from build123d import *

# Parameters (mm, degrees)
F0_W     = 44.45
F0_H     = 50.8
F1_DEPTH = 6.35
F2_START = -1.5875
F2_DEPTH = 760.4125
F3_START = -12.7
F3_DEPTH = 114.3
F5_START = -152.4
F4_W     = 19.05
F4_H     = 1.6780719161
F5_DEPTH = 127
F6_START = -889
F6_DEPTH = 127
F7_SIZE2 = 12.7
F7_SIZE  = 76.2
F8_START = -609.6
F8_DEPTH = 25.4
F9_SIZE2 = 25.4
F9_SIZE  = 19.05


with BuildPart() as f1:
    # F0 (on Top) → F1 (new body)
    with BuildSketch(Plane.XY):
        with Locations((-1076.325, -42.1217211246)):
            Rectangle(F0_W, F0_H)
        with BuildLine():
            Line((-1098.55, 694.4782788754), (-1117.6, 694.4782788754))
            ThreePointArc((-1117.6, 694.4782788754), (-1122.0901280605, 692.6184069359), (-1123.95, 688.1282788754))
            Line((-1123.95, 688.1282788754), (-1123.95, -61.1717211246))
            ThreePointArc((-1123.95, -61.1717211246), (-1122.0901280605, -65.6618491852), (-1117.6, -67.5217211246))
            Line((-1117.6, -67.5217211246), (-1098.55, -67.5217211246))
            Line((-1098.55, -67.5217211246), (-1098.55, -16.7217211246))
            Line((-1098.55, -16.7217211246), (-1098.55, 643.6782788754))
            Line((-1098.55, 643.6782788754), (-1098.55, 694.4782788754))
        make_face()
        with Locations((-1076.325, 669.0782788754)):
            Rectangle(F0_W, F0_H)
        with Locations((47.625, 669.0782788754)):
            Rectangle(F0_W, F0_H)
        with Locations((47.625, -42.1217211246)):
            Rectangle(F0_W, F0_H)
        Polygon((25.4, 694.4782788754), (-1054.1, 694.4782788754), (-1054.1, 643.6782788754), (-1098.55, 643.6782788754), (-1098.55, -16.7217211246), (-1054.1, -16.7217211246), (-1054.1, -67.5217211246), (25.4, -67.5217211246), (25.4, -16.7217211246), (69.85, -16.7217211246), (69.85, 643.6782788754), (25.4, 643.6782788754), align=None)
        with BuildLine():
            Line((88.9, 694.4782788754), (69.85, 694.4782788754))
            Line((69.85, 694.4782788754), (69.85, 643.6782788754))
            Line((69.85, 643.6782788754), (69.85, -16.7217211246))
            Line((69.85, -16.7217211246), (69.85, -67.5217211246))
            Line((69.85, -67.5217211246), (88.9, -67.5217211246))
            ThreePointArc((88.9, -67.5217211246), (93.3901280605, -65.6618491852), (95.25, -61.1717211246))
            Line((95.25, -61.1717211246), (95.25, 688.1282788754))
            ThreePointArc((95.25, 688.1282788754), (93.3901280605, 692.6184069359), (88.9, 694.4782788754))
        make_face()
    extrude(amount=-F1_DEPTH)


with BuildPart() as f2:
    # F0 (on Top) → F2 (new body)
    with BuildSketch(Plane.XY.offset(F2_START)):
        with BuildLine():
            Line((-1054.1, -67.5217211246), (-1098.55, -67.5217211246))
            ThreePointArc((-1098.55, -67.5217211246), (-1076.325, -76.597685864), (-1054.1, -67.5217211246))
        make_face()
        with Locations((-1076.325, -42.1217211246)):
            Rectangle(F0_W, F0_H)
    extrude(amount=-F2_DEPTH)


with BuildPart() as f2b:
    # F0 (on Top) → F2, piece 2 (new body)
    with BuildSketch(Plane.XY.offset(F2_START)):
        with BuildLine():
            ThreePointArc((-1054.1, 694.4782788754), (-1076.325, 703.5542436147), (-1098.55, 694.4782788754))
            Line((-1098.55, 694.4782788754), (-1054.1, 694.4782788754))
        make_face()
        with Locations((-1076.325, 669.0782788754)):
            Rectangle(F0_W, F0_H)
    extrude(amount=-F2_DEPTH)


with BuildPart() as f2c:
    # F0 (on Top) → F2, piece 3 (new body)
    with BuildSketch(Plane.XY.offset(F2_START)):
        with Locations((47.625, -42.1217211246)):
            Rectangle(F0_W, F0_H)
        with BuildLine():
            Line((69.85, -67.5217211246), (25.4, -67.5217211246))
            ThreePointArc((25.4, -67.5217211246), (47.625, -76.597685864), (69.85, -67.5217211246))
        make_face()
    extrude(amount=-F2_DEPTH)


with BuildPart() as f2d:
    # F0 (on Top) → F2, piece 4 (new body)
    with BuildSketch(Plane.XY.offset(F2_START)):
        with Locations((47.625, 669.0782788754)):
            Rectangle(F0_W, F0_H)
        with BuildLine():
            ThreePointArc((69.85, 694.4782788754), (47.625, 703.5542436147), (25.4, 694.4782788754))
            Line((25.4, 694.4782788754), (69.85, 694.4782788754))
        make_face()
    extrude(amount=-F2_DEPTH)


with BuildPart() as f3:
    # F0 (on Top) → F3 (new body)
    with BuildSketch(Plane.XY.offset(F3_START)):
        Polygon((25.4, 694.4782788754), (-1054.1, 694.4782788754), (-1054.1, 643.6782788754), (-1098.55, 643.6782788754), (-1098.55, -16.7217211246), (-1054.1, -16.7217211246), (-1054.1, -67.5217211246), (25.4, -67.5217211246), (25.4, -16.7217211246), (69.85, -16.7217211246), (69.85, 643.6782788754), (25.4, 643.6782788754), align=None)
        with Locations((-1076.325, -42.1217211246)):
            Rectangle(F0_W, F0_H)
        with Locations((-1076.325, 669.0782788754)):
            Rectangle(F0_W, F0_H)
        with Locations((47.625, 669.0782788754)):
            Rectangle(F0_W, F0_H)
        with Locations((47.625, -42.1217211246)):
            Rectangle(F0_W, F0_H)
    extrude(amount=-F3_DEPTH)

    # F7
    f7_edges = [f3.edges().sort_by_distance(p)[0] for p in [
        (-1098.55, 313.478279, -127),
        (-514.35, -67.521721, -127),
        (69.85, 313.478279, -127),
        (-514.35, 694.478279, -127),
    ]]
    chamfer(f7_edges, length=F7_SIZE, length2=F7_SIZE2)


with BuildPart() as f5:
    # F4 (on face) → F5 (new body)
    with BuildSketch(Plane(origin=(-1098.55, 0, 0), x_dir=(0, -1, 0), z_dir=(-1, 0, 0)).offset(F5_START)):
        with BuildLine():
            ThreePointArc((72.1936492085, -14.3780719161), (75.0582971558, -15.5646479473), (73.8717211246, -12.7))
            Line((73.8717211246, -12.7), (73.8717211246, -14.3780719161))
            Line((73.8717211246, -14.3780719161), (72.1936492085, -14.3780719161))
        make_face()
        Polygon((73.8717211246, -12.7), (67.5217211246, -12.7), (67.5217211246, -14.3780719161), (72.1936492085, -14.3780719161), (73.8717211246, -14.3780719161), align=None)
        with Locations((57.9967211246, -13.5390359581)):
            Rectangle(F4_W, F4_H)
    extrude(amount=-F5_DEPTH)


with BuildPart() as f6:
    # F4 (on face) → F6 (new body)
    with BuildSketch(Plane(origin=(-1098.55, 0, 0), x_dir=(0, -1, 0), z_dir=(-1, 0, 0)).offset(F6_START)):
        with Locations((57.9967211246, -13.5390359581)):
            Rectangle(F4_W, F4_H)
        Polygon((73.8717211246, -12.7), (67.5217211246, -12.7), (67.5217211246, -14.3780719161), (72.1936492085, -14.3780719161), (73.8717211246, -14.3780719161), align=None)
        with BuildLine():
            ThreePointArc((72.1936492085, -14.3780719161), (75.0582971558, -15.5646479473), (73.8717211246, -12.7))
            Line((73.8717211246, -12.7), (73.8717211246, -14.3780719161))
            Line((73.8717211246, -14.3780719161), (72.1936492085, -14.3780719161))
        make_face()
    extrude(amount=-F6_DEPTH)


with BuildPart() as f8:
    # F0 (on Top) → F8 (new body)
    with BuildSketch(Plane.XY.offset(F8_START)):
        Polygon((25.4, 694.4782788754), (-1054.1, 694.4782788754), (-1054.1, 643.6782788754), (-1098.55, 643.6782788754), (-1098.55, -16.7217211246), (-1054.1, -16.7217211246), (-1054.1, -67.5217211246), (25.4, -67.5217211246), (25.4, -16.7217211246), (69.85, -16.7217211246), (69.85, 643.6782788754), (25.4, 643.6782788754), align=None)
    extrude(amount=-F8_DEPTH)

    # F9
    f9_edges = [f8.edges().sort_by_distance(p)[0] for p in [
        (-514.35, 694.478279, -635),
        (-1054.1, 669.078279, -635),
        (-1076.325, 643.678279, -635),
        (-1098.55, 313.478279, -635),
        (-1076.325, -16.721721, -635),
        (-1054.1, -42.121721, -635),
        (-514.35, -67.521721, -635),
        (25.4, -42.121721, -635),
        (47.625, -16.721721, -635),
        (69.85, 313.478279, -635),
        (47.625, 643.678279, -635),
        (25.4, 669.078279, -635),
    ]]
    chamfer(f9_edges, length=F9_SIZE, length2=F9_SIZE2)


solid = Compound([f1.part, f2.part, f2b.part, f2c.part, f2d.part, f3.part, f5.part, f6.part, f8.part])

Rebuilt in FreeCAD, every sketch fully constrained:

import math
import FreeCAD as App
import Part
import Sketcher
from FreeCAD import Vector
Q = App.Units.Quantity


def edges_at(feature, points):
    """Names of the edges that pass closest to the given points."""
    edges = feature.Shape.Edges
    near = lambda p: min(range(len(edges)), key=lambda i: edges[i].distToShape(Part.Vertex(*p))[0])
    return sorted({f"Edge{near(p) + 1}" for p in points})


def add_polygon(sketch, points):
    """Adds a closed chain of lines whose ends are joined by coincident constraints."""
    first, n = sketch.GeometryCount, len(points)
    for a, b in zip(points, points[1:] + points[:1]):
        sketch.addGeometry(Part.LineSegment(App.Vector(*a, 0), App.Vector(*b, 0)), False)
    for i in range(n):
        sketch.addConstraint(Sketcher.Constraint("Coincident", first + i, 2, first + (i + 1) % n, 1))

doc = App.newDocument("Part")
body = doc.addObject("PartDesign::Body", "Body")

# Sketch on XY plane
sketch1 = doc.addObject("Sketcher::SketchObject", "Sketch")
body.addObject(sketch1)
sketch1.AttachmentSupport = (doc.XY_Plane, [""])
sketch1.MapMode = "FlatFace"
sketch1.addGeometry([
    Part.LineSegment(Vector(-1118, -68, 0), Vector(89, -68, 0)),  # 0
    Part.ArcOfCircle(Part.Circle(Vector(89, -61, 0), Vector(0, 0, 1), 6), math.radians(-90), math.radians(0)),  # 1
    Part.LineSegment(Vector(95, -61, 0), Vector(95, 688, 0)),  # 2
    Part.ArcOfCircle(Part.Circle(Vector(89, 688, 0), Vector(0, 0, 1), 6), math.radians(0), math.radians(90)),  # 3
    Part.LineSegment(Vector(89, 694, 0), Vector(-1118, 694, 0)),  # 4
    Part.ArcOfCircle(Part.Circle(Vector(-1118, 688, 0), Vector(0, 0, 1), 6), math.radians(90), math.radians(180)),  # 5
    Part.LineSegment(Vector(-1124, 688, 0), Vector(-1124, -61, 0)),  # 6
    Part.ArcOfCircle(Part.Circle(Vector(-1118, -61, 0), Vector(0, 0, 1), 6), math.radians(180), math.radians(270)),  # 7
], False)
sketch1.addConstraint([
    Sketcher.Constraint("Tangent", 0, 2, 1, 1),
    Sketcher.Constraint("Tangent", 1, 2, 2, 1),
    Sketcher.Constraint("Tangent", 2, 2, 3, 1),
    Sketcher.Constraint("Tangent", 3, 2, 4, 1),
    Sketcher.Constraint("Tangent", 4, 2, 5, 1),
    Sketcher.Constraint("Tangent", 5, 2, 6, 1),
    Sketcher.Constraint("Tangent", 6, 2, 7, 1),
    Sketcher.Constraint("Tangent", 7, 2, 0, 1),
    Sketcher.Constraint("Horizontal", 0),
    Sketcher.Constraint("Vertical", 2),
    Sketcher.Constraint("Horizontal", 4),
    Sketcher.Constraint("Vertical", 6),
    Sketcher.Constraint("Equal", 1, 3),
    Sketcher.Constraint("Equal", 3, 5),
    Sketcher.Constraint("Equal", 5, 7),
    Sketcher.Constraint("Radius", 1, Q("0.25 in")),
    Sketcher.Constraint("DistanceX", 0, 1, 0, 2, Q("47.5 in")),
    Sketcher.Constraint("DistanceY", 2, 1, 2, 2, Q("29.5 in")),
    Sketcher.Constraint("DistanceX", 5, 3, -1, 1, Q("44 in")),
    Sketcher.Constraint("DistanceY", 1, 3, -1, 1, 61.171721),
])
pad1 = doc.addObject("PartDesign::Pad", "Pad")
body.addObject(pad1)
pad1.Profile = sketch1
pad1.Length = Q("0.25 in")
pad1.Reversed = True
body2 = doc.addObject("PartDesign::Body", "Body001")

# Sketch on XY plane
sketch2 = doc.addObject("Sketcher::SketchObject", "Sketch001")
body2.addObject(sketch2)
sketch2.AttachmentSupport = (doc.getObject("XY_Plane001"), [""])
sketch2.MapMode = "FlatFace"
sketch2.AttachmentOffset = App.Placement(Vector(0, 0, -0.0625 * 25.4), App.Rotation())
sketch2.addGeometry([
    Part.ArcOfCircle(Part.Circle(Vector(-1076, -45, 0), Vector(0, 0, 1), 32), math.radians(-134), math.radians(-46)),
    Part.LineSegment(Vector(-1054, -68, 0), Vector(-1054, -17, 0)),
    Part.LineSegment(Vector(-1054, -17, 0), Vector(-1099, -17, 0)),
    Part.LineSegment(Vector(-1099, -17, 0), Vector(-1099, -68, 0)),
], False)
sketch2.addConstraint([
    Sketcher.Constraint("Coincident", 0, 2, 1, 1),
    Sketcher.Constraint("Coincident", 1, 2, 2, 1),
    Sketcher.Constraint("Coincident", 2, 2, 3, 1),
    Sketcher.Constraint("Coincident", 3, 2, 0, 1),
    Sketcher.Constraint("Vertical", 1),
    Sketcher.Constraint("Horizontal", 2),
    Sketcher.Constraint("Vertical", 3),
    Sketcher.Constraint("Horizontal", 0, 2, 3, 2),
    Sketcher.Constraint("DistanceY", 1, 1, 1, 2, Q("2 in")),
    Sketcher.Constraint("Radius", 0, Q("1.25 in")),
    Sketcher.Constraint("DistanceX", 2, 2, 2, 1, Q("1.75 in")),
    Sketcher.Constraint("DistanceX", 0, 2, -1, 1, Q("41.5 in")),
    Sketcher.Constraint("DistanceY", 0, 2, -1, 1, 67.521721),
])
pad2 = doc.addObject("PartDesign::Pad", "Pad001")
body2.addObject(pad2)
pad2.Profile = sketch2
pad2.Length = Q("29.9375 in")
pad2.Reversed = True
body3 = doc.addObject("PartDesign::Body", "Body002")

# Sketch on XY plane
sketch3 = doc.addObject("Sketcher::SketchObject", "Sketch002")
body3.addObject(sketch3)
sketch3.AttachmentSupport = (doc.getObject("XY_Plane002"), [""])
sketch3.MapMode = "FlatFace"
sketch3.AttachmentOffset = App.Placement(Vector(0, 0, -0.0625 * 25.4), App.Rotation())
sketch3.addGeometry([
    Part.ArcOfCircle(Part.Circle(Vector(-1076, 672, 0), Vector(0, 0, 1), 32), math.radians(46), math.radians(134)),
    Part.LineSegment(Vector(-1099, 694, 0), Vector(-1099, 644, 0)),
    Part.LineSegment(Vector(-1099, 644, 0), Vector(-1054, 644, 0)),
    Part.LineSegment(Vector(-1054, 644, 0), Vector(-1054, 694, 0)),
], False)
sketch3.addConstraint([
    Sketcher.Constraint("Coincident", 0, 2, 1, 1),
    Sketcher.Constraint("Coincident", 1, 2, 2, 1),
    Sketcher.Constraint("Coincident", 2, 2, 3, 1),
    Sketcher.Constraint("Coincident", 3, 2, 0, 1),
    Sketcher.Constraint("Vertical", 1),
    Sketcher.Constraint("Horizontal", 2),
    Sketcher.Constraint("Vertical", 3),
    Sketcher.Constraint("Horizontal", 0, 2, 3, 2),
    Sketcher.Constraint("DistanceY", 1, 2, 1, 1, Q("2 in")),
    Sketcher.Constraint("Radius", 0, Q("1.25 in")),
    Sketcher.Constraint("DistanceX", 2, 1, 2, 2, Q("1.75 in")),
    Sketcher.Constraint("DistanceX", 2, 2, -1, 1, Q("41.5 in")),
    Sketcher.Constraint("DistanceY", -1, 1, 0, 2, 694.478279),
])
pad3 = doc.addObject("PartDesign::Pad", "Pad002")
body3.addObject(pad3)
pad3.Profile = sketch3
pad3.Length = Q("29.9375 in")
pad3.Reversed = True
body4 = doc.addObject("PartDesign::Body", "Body003")

# Sketch on XY plane
sketch4 = doc.addObject("Sketcher::SketchObject", "Sketch003")
body4.addObject(sketch4)
sketch4.AttachmentSupport = (doc.getObject("XY_Plane003"), [""])
sketch4.MapMode = "FlatFace"
sketch4.AttachmentOffset = App.Placement(Vector(0, 0, -0.0625 * 25.4), App.Rotation())
sketch4.addGeometry([
    Part.LineSegment(Vector(25, -17, 0), Vector(25, -68, 0)),
    Part.ArcOfCircle(Part.Circle(Vector(48, -45, 0), Vector(0, 0, 1), 32), math.radians(-134), math.radians(-46)),
    Part.LineSegment(Vector(70, -68, 0), Vector(70, -17, 0)),
    Part.LineSegment(Vector(70, -17, 0), Vector(25, -17, 0)),
], False)
sketch4.addConstraint([
    Sketcher.Constraint("Coincident", 0, 2, 1, 1),
    Sketcher.Constraint("Coincident", 1, 2, 2, 1),
    Sketcher.Constraint("Coincident", 2, 2, 3, 1),
    Sketcher.Constraint("Coincident", 3, 2, 0, 1),
    Sketcher.Constraint("Vertical", 0),
    Sketcher.Constraint("Vertical", 2),
    Sketcher.Constraint("Horizontal", 3),
    Sketcher.Constraint("Horizontal", 0, 2, 1, 2),
    Sketcher.Constraint("DistanceY", 0, 2, 0, 1, Q("2 in")),
    Sketcher.Constraint("Radius", 1, Q("1.25 in")),
    Sketcher.Constraint("DistanceX", -1, 1, 0, 2, Q("1 in")),
    Sketcher.Constraint("DistanceX", 3, 2, 3, 1, Q("1.75 in")),
    Sketcher.Constraint("DistanceY", 0, 2, -1, 1, 67.521721),
])
pad4 = doc.addObject("PartDesign::Pad", "Pad003")
body4.addObject(pad4)
pad4.Profile = sketch4
pad4.Length = Q("29.9375 in")
pad4.Reversed = True
body5 = doc.addObject("PartDesign::Body", "Body004")

# Sketch on XY plane
sketch5 = doc.addObject("Sketcher::SketchObject", "Sketch004")
body5.addObject(sketch5)
sketch5.AttachmentSupport = (doc.getObject("XY_Plane004"), [""])
sketch5.MapMode = "FlatFace"
sketch5.AttachmentOffset = App.Placement(Vector(0, 0, -0.0625 * 25.4), App.Rotation())
sketch5.addGeometry([
    Part.LineSegment(Vector(25, 694, 0), Vector(25, 644, 0)),
    Part.LineSegment(Vector(25, 644, 0), Vector(70, 644, 0)),
    Part.LineSegment(Vector(70, 644, 0), Vector(70, 694, 0)),
    Part.ArcOfCircle(Part.Circle(Vector(48, 672, 0), Vector(0, 0, 1), 32), math.radians(46), math.radians(134)),
], False)
sketch5.addConstraint([
    Sketcher.Constraint("Coincident", 0, 2, 1, 1),
    Sketcher.Constraint("Coincident", 1, 2, 2, 1),
    Sketcher.Constraint("Coincident", 2, 2, 3, 1),
    Sketcher.Constraint("Coincident", 3, 2, 0, 1),
    Sketcher.Constraint("Vertical", 0),
    Sketcher.Constraint("Horizontal", 1),
    Sketcher.Constraint("Vertical", 2),
    Sketcher.Constraint("Horizontal", 2, 2, 3, 2),
    Sketcher.Constraint("DistanceY", 0, 2, 0, 1, Q("2 in")),
    Sketcher.Constraint("Radius", 3, Q("1.25 in")),
    Sketcher.Constraint("DistanceX", -1, 1, 0, 2, Q("1 in")),
    Sketcher.Constraint("DistanceX", 1, 1, 1, 2, Q("1.75 in")),
    Sketcher.Constraint("DistanceY", -1, 1, 0, 2, 643.678279),
])
pad5 = doc.addObject("PartDesign::Pad", "Pad004")
body5.addObject(pad5)
pad5.Profile = sketch5
pad5.Length = Q("29.9375 in")
pad5.Reversed = True
body6 = doc.addObject("PartDesign::Body", "Body005")

# Sketch on XY plane
sketch6 = doc.addObject("Sketcher::SketchObject", "Sketch005")
body6.addObject(sketch6)
sketch6.AttachmentSupport = (doc.getObject("XY_Plane005"), [""])
sketch6.MapMode = "FlatFace"
sketch6.AttachmentOffset = App.Placement(Vector(0, 0, -0.5 * 25.4), App.Rotation())
add_polygon(sketch6, [(-1099, 694), (-1099, -68), (70, -68), (70, 694)])  # lines 0-3
sketch6.addConstraint([
    Sketcher.Constraint("Vertical", 0),
    Sketcher.Constraint("Horizontal", 1),
    Sketcher.Constraint("Vertical", 2),
    Sketcher.Constraint("Horizontal", 3),
    Sketcher.Constraint("DistanceX", 1, 1, 1, 2, Q("46 in")),
    Sketcher.Constraint("DistanceY", 0, 2, 0, 1, Q("30 in")),
    Sketcher.Constraint("DistanceX", 0, 2, -1, 1, Q("43.25 in")),
    Sketcher.Constraint("DistanceY", 0, 2, -1, 1, 67.521721),
])
pad6 = doc.addObject("PartDesign::Pad", "Pad005")
body6.addObject(pad6)
pad6.Profile = sketch6
pad6.Length = Q("4.5 in")
pad6.Reversed = True
doc.recompute()

chamfer = doc.addObject("PartDesign::Chamfer", "Chamfer")
body6.addObject(chamfer)
chamfer.Base = (pad6, edges_at(pad6, [
    (-1098.55, 313.478, -127),
    (-514.35, -67.522, -127),
    (69.85, 313.478, -127),
    (-514.35, 694.478, -127),
]))
chamfer.ChamferType = "Two distances"
chamfer.Size = Q("3 in")
chamfer.Size2 = Q("0.5 in")
body7 = doc.addObject("PartDesign::Body", "Body006")

# Sketch on YZ plane
sketch7 = doc.addObject("Sketcher::SketchObject", "Sketch006")
body7.addObject(sketch7)
sketch7.AttachmentSupport = (doc.getObject("YZ_Plane006"), [""])
sketch7.MapMode = "FlatFace"
sketch7.AttachmentOffset = App.Placement(Vector(0, 0, -37.25 * 25.4), App.Rotation())
sketch7.addGeometry([
    Part.ArcOfCircle(Part.Circle(Vector(-73.9, -14.4, 0), Vector(0, 0, 1), 1.7), math.radians(90), math.radians(360)),  # 0
    Part.LineSegment(Vector(-73.9, -12.7, 0), Vector(-67.5, -12.7, 0)),  # 1
    Part.LineSegment(Vector(-67.5, -12.7, 0), Vector(-48.5, -12.7, 0)),  # 2
    Part.LineSegment(Vector(-48.5, -12.7, 0), Vector(-48.5, -14.4, 0)),  # 3
    Part.LineSegment(Vector(-48.5, -14.4, 0), Vector(-67.5, -14.4, 0)),  # 4
    Part.LineSegment(Vector(-67.5, -14.4, 0), Vector(-72.2, -14.4, 0)),  # 5
], False)
sketch7.addConstraint([
    Sketcher.Constraint("Tangent", 0, 1, 1, 1),
    Sketcher.Constraint("Coincident", 1, 2, 2, 1),
    Sketcher.Constraint("Coincident", 2, 2, 3, 1),
    Sketcher.Constraint("Coincident", 3, 2, 4, 1),
    Sketcher.Constraint("Coincident", 4, 2, 5, 1),
    Sketcher.Constraint("Coincident", 5, 2, 0, 2),
    Sketcher.Constraint("Horizontal", 1),
    Sketcher.Constraint("Horizontal", 2),
    Sketcher.Constraint("Vertical", 3),
    Sketcher.Constraint("Horizontal", 4),
    Sketcher.Constraint("Horizontal", 5),
    Sketcher.Constraint("Horizontal", 0, 3, 3, 2),
    Sketcher.Constraint("Vertical", 1, 2, 4, 2),
    Sketcher.Constraint("DistanceX", 0, 1, 2, 2, Q("1 in")),
    Sketcher.Constraint("DistanceX", 1, 1, 1, 2, Q("0.25 in")),
    Sketcher.Constraint("DistanceY", 0, 1, -1, 1, Q("0.5 in")),
    Sketcher.Constraint("Radius", 0, 1.678072),
    Sketcher.Constraint("DistanceX", 0, 3, -1, 1, 73.871721),
])
pad7 = doc.addObject("PartDesign::Pad", "Pad006")
body7.addObject(pad7)
pad7.Profile = sketch7
pad7.Length = Q("5 in")
body8 = doc.addObject("PartDesign::Body", "Body007")

# Sketch on YZ plane
sketch8 = doc.addObject("Sketcher::SketchObject", "Sketch007")
body8.addObject(sketch8)
sketch8.AttachmentSupport = (doc.getObject("YZ_Plane007"), [""])
sketch8.MapMode = "FlatFace"
sketch8.AttachmentOffset = App.Placement(Vector(0, 0, -8.25 * 25.4), App.Rotation())
sketch8.addGeometry([
    Part.LineSegment(Vector(-48.5, -12.7, 0), Vector(-48.5, -14.4, 0)),  # 0
    Part.LineSegment(Vector(-48.5, -14.4, 0), Vector(-67.5, -14.4, 0)),  # 1
    Part.LineSegment(Vector(-67.5, -14.4, 0), Vector(-72.2, -14.4, 0)),  # 2
    Part.ArcOfCircle(Part.Circle(Vector(-73.9, -14.4, 0), Vector(0, 0, 1), 1.7), math.radians(90), math.radians(360)),  # 3
    Part.LineSegment(Vector(-73.9, -12.7, 0), Vector(-67.5, -12.7, 0)),  # 4
    Part.LineSegment(Vector(-67.5, -12.7, 0), Vector(-48.5, -12.7, 0)),  # 5
], False)
sketch8.addConstraint([
    Sketcher.Constraint("Coincident", 0, 2, 1, 1),
    Sketcher.Constraint("Coincident", 1, 2, 2, 1),
    Sketcher.Constraint("Coincident", 2, 2, 3, 2),
    Sketcher.Constraint("Tangent", 3, 1, 4, 1),
    Sketcher.Constraint("Coincident", 4, 2, 5, 1),
    Sketcher.Constraint("Coincident", 5, 2, 0, 1),
    Sketcher.Constraint("Vertical", 0),
    Sketcher.Constraint("Horizontal", 1),
    Sketcher.Constraint("Horizontal", 2),
    Sketcher.Constraint("Horizontal", 4),
    Sketcher.Constraint("Horizontal", 5),
    Sketcher.Constraint("Horizontal", 3, 3, 0, 2),
    Sketcher.Constraint("Vertical", 1, 2, 4, 2),
    Sketcher.Constraint("DistanceX", 3, 3, 0, 2, Q("1 in")),
    Sketcher.Constraint("DistanceX", 1, 2, 1, 1, Q("0.75 in")),
    Sketcher.Constraint("DistanceY", 3, 1, -1, 1, Q("0.5 in")),
    Sketcher.Constraint("Radius", 3, 1.678072),
    Sketcher.Constraint("DistanceX", 3, 3, -1, 1, 73.871721),
])
pad8 = doc.addObject("PartDesign::Pad", "Pad007")
body8.addObject(pad8)
pad8.Profile = sketch8
pad8.Length = Q("5 in")
body9 = doc.addObject("PartDesign::Body", "Body008")

# Sketch on XY plane
sketch9 = doc.addObject("Sketcher::SketchObject", "Sketch008")
body9.addObject(sketch9)
sketch9.AttachmentSupport = (doc.getObject("XY_Plane008"), [""])
sketch9.MapMode = "FlatFace"
sketch9.AttachmentOffset = App.Placement(Vector(0, 0, -24 * 25.4), App.Rotation())
add_polygon(sketch9, [(25, 694), (-1054, 694), (-1054, 644), (-1099, 644), (-1099, -17), (-1054, -17), (-1054, -68), (25, -68), (25, -17), (70, -17), (70, 644), (25, 644)])  # lines 0-11
sketch9.addConstraint([
    Sketcher.Constraint("Horizontal", 0),
    Sketcher.Constraint("Vertical", 1),
    Sketcher.Constraint("Horizontal", 2),
    Sketcher.Constraint("Vertical", 3),
    Sketcher.Constraint("Horizontal", 4),
    Sketcher.Constraint("Vertical", 5),
    Sketcher.Constraint("Horizontal", 6),
    Sketcher.Constraint("Vertical", 7),
    Sketcher.Constraint("Horizontal", 8),
    Sketcher.Constraint("Vertical", 9),
    Sketcher.Constraint("Horizontal", 10),
    Sketcher.Constraint("Vertical", 11),
    Sketcher.Constraint("Horizontal", 4, 2, 7, 2),
    Sketcher.Constraint("Horizontal", 2, 2, 9, 2),
    Sketcher.Constraint("Vertical", 1, 2, 4, 2),
    Sketcher.Constraint("Vertical", 7, 2, 10, 2),
    Sketcher.Constraint("Equal", 4, 8),
    Sketcher.Constraint("Equal", 1, 5),
    Sketcher.Constraint("DistanceY", 1, 2, 1, 1, Q("2 in")),
    Sketcher.Constraint("DistanceY", 3, 2, 3, 1, Q("26 in")),
    Sketcher.Constraint("DistanceX", 0, 2, 0, 1, Q("42.5 in")),
    Sketcher.Constraint("DistanceX", -1, 1, 6, 2, Q("1 in")),
    Sketcher.Constraint("DistanceX", 3, 2, 8, 2, Q("46 in")),
    Sketcher.Constraint("DistanceY", -1, 1, 0, 2, 694.478279),
])
pad9 = doc.addObject("PartDesign::Pad", "Pad008")
body9.addObject(pad9)
pad9.Profile = sketch9
pad9.Length = Q("1 in")
pad9.Reversed = True
doc.recompute()

chamfer2 = doc.addObject("PartDesign::Chamfer", "Chamfer001")
body9.addObject(chamfer2)
chamfer2.Base = (pad9, edges_at(pad9, [
    (-514.35, 694.478, -635),
    (-1054.1, 669.078, -635),
    (-1076.325, 643.678, -635),
    (-1098.55, 313.478, -635),
    (-1076.325, -16.722, -635),
    (-1054.1, -42.122, -635),
    (-514.35, -67.522, -635),
    (25.4, -42.122, -635),
    (47.625, -16.722, -635),
    (69.85, 313.478, -635),
    (47.625, 643.678, -635),
    (25.4, 669.078, -635),
]))
chamfer2.ChamferType = "Two distances"
chamfer2.Size = Q("0.75 in")
chamfer2.Size2 = Q("1 in")

doc.recompute()
